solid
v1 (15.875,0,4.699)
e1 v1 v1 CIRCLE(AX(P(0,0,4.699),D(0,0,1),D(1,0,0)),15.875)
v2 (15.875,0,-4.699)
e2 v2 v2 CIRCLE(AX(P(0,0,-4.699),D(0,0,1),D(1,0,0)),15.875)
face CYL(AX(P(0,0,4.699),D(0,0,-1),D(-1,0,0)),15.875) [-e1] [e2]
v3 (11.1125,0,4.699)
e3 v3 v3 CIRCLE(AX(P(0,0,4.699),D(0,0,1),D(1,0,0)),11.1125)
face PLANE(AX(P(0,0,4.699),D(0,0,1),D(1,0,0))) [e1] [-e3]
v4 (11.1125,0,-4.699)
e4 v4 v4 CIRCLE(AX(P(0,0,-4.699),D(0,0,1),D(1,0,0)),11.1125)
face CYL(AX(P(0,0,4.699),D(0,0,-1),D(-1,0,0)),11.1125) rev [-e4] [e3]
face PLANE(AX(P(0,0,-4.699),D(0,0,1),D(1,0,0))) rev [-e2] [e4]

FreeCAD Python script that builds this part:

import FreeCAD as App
import Part
import Sketcher
Q = App.Units.Quantity

doc = App.newDocument("Part")
body = doc.addObject("PartDesign::Body", "Body")

# Sketch on XY plane
sketch1 = body.newObject("Sketcher::SketchObject", "Sketch")
sketch1.AttachmentSupport = (doc.getObject("XY_Plane"), [""])
sketch1.MapMode = "FlatFace"
sketch1.addGeometry([
    Part.Circle(App.Vector(0, 0, 0), App.Vector(0, 0, 1), 16),
    Part.Circle(App.Vector(0, 0, 0), App.Vector(0, 0, 1), 11),
], False)
sketch1.addConstraint([
    Sketcher.Constraint("Coincident", 0, 3, -1, 1),
    Sketcher.Constraint("Coincident", 1, 3, -1, 1),
    Sketcher.Constraint("Diameter", 0, Q("1.25 in")),
    Sketcher.Constraint("Diameter", 1, Q("0.875 in")),
])
pad1 = body.newObject("PartDesign::Pad", "Pad")
pad1.Profile = sketch1
pad1.Length = Q("0.37 in")
pad1.Midplane = True

doc.recompute()
